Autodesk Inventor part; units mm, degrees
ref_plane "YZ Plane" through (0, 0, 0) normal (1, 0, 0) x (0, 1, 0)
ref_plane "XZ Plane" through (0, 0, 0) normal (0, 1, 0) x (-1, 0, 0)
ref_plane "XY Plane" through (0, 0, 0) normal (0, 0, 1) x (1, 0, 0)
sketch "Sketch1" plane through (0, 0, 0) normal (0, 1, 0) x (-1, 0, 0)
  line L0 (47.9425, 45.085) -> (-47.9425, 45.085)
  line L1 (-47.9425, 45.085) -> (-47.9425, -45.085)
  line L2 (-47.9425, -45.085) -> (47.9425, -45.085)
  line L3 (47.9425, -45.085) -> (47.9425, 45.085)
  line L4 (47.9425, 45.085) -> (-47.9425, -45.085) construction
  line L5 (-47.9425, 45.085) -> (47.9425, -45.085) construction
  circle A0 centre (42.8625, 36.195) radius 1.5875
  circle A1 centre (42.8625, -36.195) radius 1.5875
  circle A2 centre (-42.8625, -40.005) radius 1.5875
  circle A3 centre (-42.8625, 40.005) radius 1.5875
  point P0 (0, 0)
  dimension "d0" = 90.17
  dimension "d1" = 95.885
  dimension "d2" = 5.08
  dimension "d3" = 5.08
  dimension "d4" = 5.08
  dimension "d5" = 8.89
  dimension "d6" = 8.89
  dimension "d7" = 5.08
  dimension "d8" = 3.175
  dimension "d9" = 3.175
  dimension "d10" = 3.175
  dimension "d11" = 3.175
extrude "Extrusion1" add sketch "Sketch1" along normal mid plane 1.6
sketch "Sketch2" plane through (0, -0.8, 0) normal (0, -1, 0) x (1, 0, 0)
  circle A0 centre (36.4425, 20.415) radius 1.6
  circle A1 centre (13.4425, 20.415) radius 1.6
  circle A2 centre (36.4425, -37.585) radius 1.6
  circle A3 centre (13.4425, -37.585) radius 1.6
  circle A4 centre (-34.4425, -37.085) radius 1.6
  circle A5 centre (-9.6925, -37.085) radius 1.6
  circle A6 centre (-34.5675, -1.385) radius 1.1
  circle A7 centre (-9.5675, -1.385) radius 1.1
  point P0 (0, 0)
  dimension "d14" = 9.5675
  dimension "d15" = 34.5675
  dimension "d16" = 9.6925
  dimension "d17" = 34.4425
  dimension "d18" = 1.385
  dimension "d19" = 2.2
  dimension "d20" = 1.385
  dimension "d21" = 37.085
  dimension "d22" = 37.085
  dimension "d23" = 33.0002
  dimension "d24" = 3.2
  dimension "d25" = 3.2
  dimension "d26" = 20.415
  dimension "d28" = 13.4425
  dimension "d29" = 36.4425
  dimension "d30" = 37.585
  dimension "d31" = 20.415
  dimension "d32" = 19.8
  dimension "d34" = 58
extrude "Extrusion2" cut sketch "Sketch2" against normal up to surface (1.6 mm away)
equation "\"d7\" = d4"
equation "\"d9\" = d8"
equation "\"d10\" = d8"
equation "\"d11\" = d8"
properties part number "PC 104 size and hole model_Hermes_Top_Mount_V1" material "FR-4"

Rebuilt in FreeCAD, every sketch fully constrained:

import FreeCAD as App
import Part
import Sketcher
from FreeCAD import Vector
Q = App.Units.Quantity


def add_polygon(sketch, points):
    """Adds a closed chain of lines whose ends are joined by coincident constraints."""
    first, n = sketch.GeometryCount, len(points)
    for a, b in zip(points, points[1:] + points[:1]):
        sketch.addGeometry(Part.LineSegment(App.Vector(*a, 0), App.Vector(*b, 0)), False)
    for i in range(n):
        sketch.addConstraint(Sketcher.Constraint("Coincident", first + i, 2, first + (i + 1) % n, 1))

doc = App.newDocument("Part")
body = doc.addObject("PartDesign::Body", "Body")

# Sketch on XZ plane
sketch1 = doc.addObject("Sketcher::SketchObject", "Sketch")
body.addObject(sketch1)
sketch1.AttachmentSupport = (doc.XZ_Plane, [""])
sketch1.MapMode = "FlatFace"
add_polygon(sketch1, [(-47.9, -45.1), (-47.9, 45.1), (47.9, 45.1), (47.9, -45.1)])  # lines 0-3
sketch1.addGeometry(Part.Circle(Vector(42.9, -40, 0), Vector(0, 0, 1), 1.6), False)  # 4
sketch1.addGeometry(Part.Circle(Vector(-42.9, -36.2, 0), Vector(0, 0, 1), 1.6), False)  # 5
sketch1.addGeometry(Part.Circle(Vector(42.9, 40, 0), Vector(0, 0, 1), 1.6), False)  # 6
sketch1.addGeometry(Part.Circle(Vector(-42.9, 36.2, 0), Vector(0, 0, 1), 1.6), False)  # 7
sketch1.addConstraint([
    Sketcher.Constraint("Vertical", 0),
    Sketcher.Constraint("Horizontal", 1),
    Sketcher.Constraint("Vertical", 2),
    Sketcher.Constraint("Horizontal", 3),
    Sketcher.Constraint("Equal", 4, 5),
    Sketcher.Constraint("Equal", 5, 6),
    Sketcher.Constraint("Equal", 6, 7),
    Sketcher.Constraint("Symmetric", 0, 2, 2, 2, -1, 1),
    Sketcher.Constraint("Symmetric", 4, 3, 6, 3, -1),
    Sketcher.Constraint("Symmetric", 5, 3, 7, 3, -1),
    Sketcher.Constraint("Diameter", 4, Q("0.125 in")),
    Sketcher.Constraint("DistanceY", 0, 1, 0, 2, Q("3.55 in")),
    Sketcher.Constraint("DistanceX", 0, 2, 7, 3, Q("0.2 in")),
    Sketcher.Constraint("DistanceY", 6, 3, 0, 2, Q("0.2 in")),
    Sketcher.Constraint("DistanceX", 6, 3, 1, 2, Q("0.2 in")),
    Sketcher.Constraint("DistanceX", 1, 1, 1, 2, Q("3.775 in")),
    Sketcher.Constraint("DistanceY", 7, 3, 0, 2, Q("0.35 in")),
])
pad1 = doc.addObject("PartDesign::Pad", "Pad")
body.addObject(pad1)
pad1.Profile = sketch1
pad1.Length = Q("0.0629921 in")
pad1.Midplane = True

# Sketch on XZ plane
sketch2 = doc.addObject("Sketcher::SketchObject", "Sketch001")
body.addObject(sketch2)
sketch2.AttachmentSupport = (doc.XZ_Plane, [""])
sketch2.MapMode = "FlatFace"
sketch2.AttachmentOffset = App.Placement(Vector(0, 0, 0.0314961 * 25.4), App.Rotation())
sketch2.addGeometry([
    Part.Circle(Vector(36.4, 20.4, 0), Vector(0, 0, 1), 1.6),  # 0
    Part.Circle(Vector(13.4, 20.4, 0), Vector(0, 0, 1), 1.6),  # 1
    Part.Circle(Vector(36.4, -37.6, 0), Vector(0, 0, 1), 1.6),  # 2
    Part.Circle(Vector(13.4, -37.6, 0), Vector(0, 0, 1), 1.6),  # 3
    Part.Circle(Vector(-34.4, -37.1, 0), Vector(0, 0, 1), 1.6),  # 4
    Part.Circle(Vector(-9.7, -37.1, 0), Vector(0, 0, 1), 1.6),  # 5
    Part.Circle(Vector(-34.6, -1.4, 0), Vector(0, 0, 1), 1.1),  # 6
    Part.Circle(Vector(-9.6, -1.4, 0), Vector(0, 0, 1), 1.1),  # 7
], False)
sketch2.addConstraint([
    Sketcher.Constraint("Equal", 0, 1),
    Sketcher.Constraint("Equal", 1, 2),
    Sketcher.Constraint("Equal", 2, 3),
    Sketcher.Constraint("Equal", 3, 4),
    Sketcher.Constraint("Equal", 4, 5),
    Sketcher.Constraint("Equal", 6, 7),
    Sketcher.Constraint("Horizontal", 0, 3, 1, 3),
    Sketcher.Constraint("Horizontal", 2, 3, 3, 3),
    Sketcher.Constraint("Horizontal", 4, 3, 5, 3),
    Sketcher.Constraint("Horizontal", 6, 3, 7, 3),
    Sketcher.Constraint("Vertical", 0, 3, 2, 3),
    Sketcher.Constraint("Vertical", 1, 3, 3, 3),
    Sketcher.Constraint("Diameter", 0, 3.2),
    Sketcher.Constraint("Diameter", 6, 2.2),
    Sketcher.Constraint("DistanceX", 4, 3, -1, 1, Q("1.356 in")),
    Sketcher.Constraint("DistanceX", 5, 3, -1, 1, Q("0.3816 in")),
    Sketcher.Constraint("DistanceX", -1, 1, 0, 3, 36.4425),
    Sketcher.Constraint("DistanceY", -1, 1, 0, 3, 20.415),
    Sketcher.Constraint("DistanceX", -1, 1, 1, 3, 13.4425),
    Sketcher.Constraint("DistanceY", 2, 3, -1, 1, 37.585),
    Sketcher.Constraint("DistanceY", 4, 3, -1, 1, 37.085),
    Sketcher.Constraint("DistanceX", 6, 3, -1, 1, 34.5675),
    Sketcher.Constraint("DistanceY", 6, 3, -1, 1, 1.385),
    Sketcher.Constraint("DistanceX", 7, 3, -1, 1, 9.5675),
])
pocket1 = doc.addObject("PartDesign::Pocket", "Pocket")
body.addObject(pocket1)
pocket1.Profile = sketch2
pocket1.Length = Q("0.0629921 in")

doc.recompute()
